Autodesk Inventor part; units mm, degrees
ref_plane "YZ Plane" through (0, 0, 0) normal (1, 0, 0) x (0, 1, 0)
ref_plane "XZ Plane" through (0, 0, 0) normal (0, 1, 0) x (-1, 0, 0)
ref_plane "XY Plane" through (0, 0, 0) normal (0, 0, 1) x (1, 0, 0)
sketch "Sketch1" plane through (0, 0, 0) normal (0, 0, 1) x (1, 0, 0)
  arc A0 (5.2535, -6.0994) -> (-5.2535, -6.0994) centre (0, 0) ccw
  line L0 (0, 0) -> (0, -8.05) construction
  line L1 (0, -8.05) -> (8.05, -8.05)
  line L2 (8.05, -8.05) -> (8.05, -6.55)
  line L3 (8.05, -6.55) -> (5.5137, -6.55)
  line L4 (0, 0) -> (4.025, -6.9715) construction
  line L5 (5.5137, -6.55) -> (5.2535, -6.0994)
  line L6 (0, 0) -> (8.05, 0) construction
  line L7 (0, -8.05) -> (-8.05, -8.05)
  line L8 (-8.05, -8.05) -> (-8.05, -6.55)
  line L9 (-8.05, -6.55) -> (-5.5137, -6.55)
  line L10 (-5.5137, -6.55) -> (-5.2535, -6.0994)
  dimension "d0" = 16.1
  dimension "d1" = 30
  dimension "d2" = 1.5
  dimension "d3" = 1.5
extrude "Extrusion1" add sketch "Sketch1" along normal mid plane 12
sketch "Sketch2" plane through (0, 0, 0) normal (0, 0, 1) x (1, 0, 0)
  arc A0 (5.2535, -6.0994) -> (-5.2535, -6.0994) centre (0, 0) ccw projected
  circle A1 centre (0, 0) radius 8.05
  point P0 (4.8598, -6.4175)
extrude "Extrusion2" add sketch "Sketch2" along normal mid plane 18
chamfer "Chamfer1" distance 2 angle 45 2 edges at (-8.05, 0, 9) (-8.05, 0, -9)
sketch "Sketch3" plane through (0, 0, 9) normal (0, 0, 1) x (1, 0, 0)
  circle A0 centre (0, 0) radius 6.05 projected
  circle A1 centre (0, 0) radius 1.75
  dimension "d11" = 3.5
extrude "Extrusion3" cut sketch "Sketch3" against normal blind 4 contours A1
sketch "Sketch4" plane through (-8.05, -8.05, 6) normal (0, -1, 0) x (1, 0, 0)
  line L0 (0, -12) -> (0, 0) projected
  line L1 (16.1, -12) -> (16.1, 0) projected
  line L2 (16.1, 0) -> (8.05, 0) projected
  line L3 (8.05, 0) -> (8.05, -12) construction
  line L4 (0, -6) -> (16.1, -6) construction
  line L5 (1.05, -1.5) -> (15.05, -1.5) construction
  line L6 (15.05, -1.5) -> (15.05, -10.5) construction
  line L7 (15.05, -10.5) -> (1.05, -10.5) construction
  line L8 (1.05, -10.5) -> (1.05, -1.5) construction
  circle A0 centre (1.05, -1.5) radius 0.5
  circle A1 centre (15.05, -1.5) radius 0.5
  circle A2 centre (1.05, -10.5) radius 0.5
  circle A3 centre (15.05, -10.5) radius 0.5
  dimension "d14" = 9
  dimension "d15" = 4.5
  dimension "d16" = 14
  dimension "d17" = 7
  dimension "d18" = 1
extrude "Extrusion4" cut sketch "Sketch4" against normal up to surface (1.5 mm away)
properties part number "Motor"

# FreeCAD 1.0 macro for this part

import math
import FreeCAD as App
import Part
import Sketcher

V = App.Vector
Q = App.Units.Quantity


def edges_at(feature, points):
    """Names of the edges that pass closest to the given points."""
    edges = feature.Shape.Edges
    near = lambda p: min(range(len(edges)), key=lambda i: edges[i].distToShape(Part.Vertex(*p))[0])
    return sorted({f"Edge{near(p) + 1}" for p in points})

doc = App.newDocument("Part")
body = doc.addObject("PartDesign::Body", "Body")

sketch1 = doc.addObject("Sketcher::SketchObject", "Sketch")
body.addObject(sketch1)
sketch1.AttachmentSupport = (doc.XY_Plane, [""])
sketch1.MapMode = "FlatFace"
sketch1.addGeometry(Part.LineSegment(V(5.5, -6.5, 0), V(5.3, -6.1, 0)), False)
sketch1.addGeometry(Part.ArcOfCircle(Part.Circle(V(0, 0, 0), V(0, 0, 1), 8), math.radians(-49), math.radians(229)), False)
sketch1.addGeometry(Part.LineSegment(V(-5.3, -6.1, 0), V(-5.5, -6.5, 0)), False)
sketch1.addGeometry(Part.LineSegment(V(-5.5, -6.5, 0), V(-8.1, -6.5, 0)), False)
sketch1.addGeometry(Part.LineSegment(V(-8.1, -6.5, 0), V(-8.1, -8.1, 0)), False)
sketch1.addGeometry(Part.LineSegment(V(-8.1, -8.1, 0), V(8.1, -8.1, 0)), False)
sketch1.addGeometry(Part.LineSegment(V(8.1, -8.1, 0), V(8.1, -6.5, 0)), False)
sketch1.addGeometry(Part.LineSegment(V(8.1, -6.5, 0), V(5.5, -6.5, 0)), False)
sketch1.addConstraint(Sketcher.Constraint("Coincident", 0, 2, 1, 1))
sketch1.addConstraint(Sketcher.Constraint("Coincident", 1, 2, 2, 1))
sketch1.addConstraint(Sketcher.Constraint("Coincident", 2, 2, 3, 1))
sketch1.addConstraint(Sketcher.Constraint("Coincident", 3, 2, 4, 1))
sketch1.addConstraint(Sketcher.Constraint("Coincident", 4, 2, 5, 1))
sketch1.addConstraint(Sketcher.Constraint("Coincident", 5, 2, 6, 1))
sketch1.addConstraint(Sketcher.Constraint("Coincident", 6, 2, 7, 1))
sketch1.addConstraint(Sketcher.Constraint("Coincident", 7, 2, 0, 1))
sketch1.addConstraint(Sketcher.Constraint("Horizontal", 3))
sketch1.addConstraint(Sketcher.Constraint("Vertical", 4))
sketch1.addConstraint(Sketcher.Constraint("Horizontal", 5))
sketch1.addConstraint(Sketcher.Constraint("Vertical", 6))
sketch1.addConstraint(Sketcher.Constraint("Horizontal", 7))
sketch1.addConstraint(Sketcher.Constraint("Coincident", 1, 3, -1, 1))
sketch1.addConstraint(Sketcher.Constraint("Symmetric", 3, 2, 6, 2, -2))
sketch1.addConstraint(Sketcher.Constraint("Horizontal", 0, 2, 1, 2))
sketch1.addConstraint(Sketcher.Constraint("Equal", 3, 7))
sketch1.addConstraint(Sketcher.Constraint("Radius", 1, Q("8.05 mm")))
sketch1.addConstraint(Sketcher.Constraint("DistanceX", 5, 1, 5, 2, Q("16.1 mm")))
sketch1.addConstraint(Sketcher.Constraint("DistanceY", 4, 2, 4, 1, Q("1.5 mm")))
sketch1.addConstraint(Sketcher.Constraint("DistanceY", 2, 2, -1, 1, Q("6.55 mm")))
sketch1.addConstraint(Sketcher.Constraint("DistanceX", 3, 2, 3, 1, Q("2.5363 mm")))
sketch1.addConstraint(Sketcher.Constraint("DistanceX", 1, 2, 0, 2, Q("10.507 mm")))
pad1 = doc.addObject("PartDesign::Pad", "Pad")
body.addObject(pad1)
pad1.Profile = sketch1
pad1.Length = 12
pad1.Midplane = True

sketch2 = doc.addObject("Sketcher::SketchObject", "Sketch001")
body.addObject(sketch2)
sketch2.AttachmentSupport = (doc.XY_Plane, [""])
sketch2.MapMode = "FlatFace"
sketch2.addGeometry(Part.Circle(V(0, 0, 0), V(0, 0, 1), 8), False)
sketch2.addConstraint(Sketcher.Constraint("Coincident", 0, 3, -1, 1))
sketch2.addConstraint(Sketcher.Constraint("Diameter", 0, Q("16.1 mm")))
pad2 = doc.addObject("PartDesign::Pad", "Pad001")
body.addObject(pad2)
pad2.Profile = sketch2
pad2.Length = 18
pad2.Midplane = True
doc.recompute()

chamfer = doc.addObject("PartDesign::Chamfer", "Chamfer")
body.addObject(chamfer)
chamfer.Base = (pad2, edges_at(pad2, [(-8.05, 0, 9), (-8.05, 0, -9)]))
chamfer.Size = 2

sketch3 = doc.addObject("Sketcher::SketchObject", "Sketch002")
body.addObject(sketch3)
sketch3.AttachmentSupport = (doc.XY_Plane, [""])
sketch3.MapMode = "FlatFace"
sketch3.AttachmentOffset = App.Placement(V(0, 0, 9), App.Rotation())
sketch3.addGeometry(Part.Circle(V(0, 0, 0), V(0, 0, 1), 1.8), False)
sketch3.addConstraint(Sketcher.Constraint("Coincident", 0, 3, -1, 1))
sketch3.addConstraint(Sketcher.Constraint("Diameter", 0, Q("3.5 mm")))
pocket1 = doc.addObject("PartDesign::Pocket", "Pocket")
body.addObject(pocket1)
pocket1.Profile = sketch3
pocket1.Length = 4

sketch4 = doc.addObject("Sketcher::SketchObject", "Sketch003")
body.addObject(sketch4)
sketch4.AttachmentSupport = (doc.XZ_Plane, [""])
sketch4.MapMode = "FlatFace"
sketch4.AttachmentOffset = App.Placement(V(0, 0, 8.05), App.Rotation())
sketch4.addGeometry(Part.Circle(V(-7, 4.5, 0), V(0, 0, 1), 0.5), False)
sketch4.addGeometry(Part.Circle(V(7, 4.5, 0), V(0, 0, 1), 0.5), False)
sketch4.addGeometry(Part.Circle(V(-7, -4.5, 0), V(0, 0, 1), 0.5), False)
sketch4.addGeometry(Part.Circle(V(7, -4.5, 0), V(0, 0, 1), 0.5), False)
sketch4.addConstraint(Sketcher.Constraint("Equal", 0, 1))
sketch4.addConstraint(Sketcher.Constraint("Equal", 1, 2))
sketch4.addConstraint(Sketcher.Constraint("Equal", 2, 3))
sketch4.addConstraint(Sketcher.Constraint("Symmetric", 1, 3, 2, 3, -1, 1))
sketch4.addConstraint(Sketcher.Constraint("Symmetric", 0, 3, 3, 3, -1, 1))
sketch4.addConstraint(Sketcher.Constraint("Symmetric", 0, 3, 1, 3, -2))
sketch4.addConstraint(Sketcher.Constraint("Diameter", 0, Q("1 mm")))
sketch4.addConstraint(Sketcher.Constraint("DistanceX", 0, 3, -1, 1, Q("7 mm")))
sketch4.addConstraint(Sketcher.Constraint("DistanceY", 2, 3, 0, 3, Q("9 mm")))
pocket2 = doc.addObject("PartDesign::Pocket", "Pocket001")
body.addObject(pocket2)
pocket2.Profile = sketch4
pocket2.Length = 1.5

doc.recompute()
